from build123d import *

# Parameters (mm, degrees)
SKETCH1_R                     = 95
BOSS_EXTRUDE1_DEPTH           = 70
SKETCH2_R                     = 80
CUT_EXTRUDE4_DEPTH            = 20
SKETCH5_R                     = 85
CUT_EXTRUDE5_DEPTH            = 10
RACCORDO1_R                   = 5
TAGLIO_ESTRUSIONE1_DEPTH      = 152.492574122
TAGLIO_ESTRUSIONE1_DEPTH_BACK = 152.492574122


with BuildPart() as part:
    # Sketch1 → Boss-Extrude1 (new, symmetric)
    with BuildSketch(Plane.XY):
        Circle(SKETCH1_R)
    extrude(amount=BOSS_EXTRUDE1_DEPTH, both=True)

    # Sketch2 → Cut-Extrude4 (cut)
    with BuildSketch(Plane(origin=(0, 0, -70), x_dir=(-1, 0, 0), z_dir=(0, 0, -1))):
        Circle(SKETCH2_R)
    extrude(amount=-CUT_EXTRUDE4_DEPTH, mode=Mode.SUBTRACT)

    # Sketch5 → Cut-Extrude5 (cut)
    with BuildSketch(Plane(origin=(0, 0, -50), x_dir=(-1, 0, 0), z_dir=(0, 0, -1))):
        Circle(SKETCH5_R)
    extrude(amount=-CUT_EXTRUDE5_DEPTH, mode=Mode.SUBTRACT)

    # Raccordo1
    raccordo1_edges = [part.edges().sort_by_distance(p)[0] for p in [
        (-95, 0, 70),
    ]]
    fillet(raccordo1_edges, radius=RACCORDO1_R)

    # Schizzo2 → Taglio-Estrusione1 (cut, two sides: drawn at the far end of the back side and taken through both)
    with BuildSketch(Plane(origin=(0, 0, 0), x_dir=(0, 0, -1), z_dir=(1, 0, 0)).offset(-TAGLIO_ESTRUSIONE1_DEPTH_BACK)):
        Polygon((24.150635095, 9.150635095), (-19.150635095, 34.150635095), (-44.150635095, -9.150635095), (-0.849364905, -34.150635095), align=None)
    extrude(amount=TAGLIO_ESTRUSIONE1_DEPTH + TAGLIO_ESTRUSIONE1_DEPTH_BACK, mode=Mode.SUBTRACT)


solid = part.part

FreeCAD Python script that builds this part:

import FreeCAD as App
import Part
import Sketcher

V = App.Vector
Q = App.Units.Quantity


def edges_at(feature, points):
    """Names of the edges that pass closest to the given points."""
    edges = feature.Shape.Edges
    near = lambda p: min(range(len(edges)), key=lambda i: edges[i].distToShape(Part.Vertex(*p))[0])
    return sorted({f"Edge{near(p) + 1}" for p in points})


def add_polygon(sketch, points):
    """Adds a closed chain of lines whose ends are joined by coincident constraints."""
    first, n = sketch.GeometryCount, len(points)
    for a, b in zip(points, points[1:] + points[:1]):
        sketch.addGeometry(Part.LineSegment(App.Vector(*a, 0), App.Vector(*b, 0)), False)
    for i in range(n):
        sketch.addConstraint(Sketcher.Constraint("Coincident", first + i, 2, first + (i + 1) % n, 1))

doc = App.newDocument("Part")
body = doc.addObject("PartDesign::Body", "Body")

sketch1 = body.newObject("Sketcher::SketchObject", "Sketch")
sketch1.AttachmentSupport = (doc.getObject("XY_Plane"), [""])
sketch1.MapMode = "FlatFace"
sketch1.addGeometry(Part.Circle(V(0, 0, 0), V(0, 0, 1), 95), False)
sketch1.addConstraint([
    Sketcher.Constraint("Coincident", 0, 3, -1, 1),
    Sketcher.Constraint("Diameter", 0, Q("190 mm")),
])
pad1 = body.newObject("PartDesign::Pad", "Pad")
pad1.Profile = sketch1
pad1.Length = 140
pad1.Midplane = True

sketch2 = body.newObject("Sketcher::SketchObject", "Sketch001")
sketch2.AttachmentSupport = (doc.getObject("XY_Plane"), [""])
sketch2.MapMode = "FlatFace"
sketch2.AttachmentOffset = App.Placement(V(0, 0, -70), App.Rotation())
sketch2.addGeometry(Part.Circle(V(0, 0, 0), V(0, 0, 1), 80), False)
sketch2.addConstraint([
    Sketcher.Constraint("Coincident", 0, 3, -1, 1),
    Sketcher.Constraint("Diameter", 0, Q("160 mm")),
])
pocket1 = body.newObject("PartDesign::Pocket", "Pocket")
pocket1.Profile = sketch2
pocket1.Length = 20
pocket1.Reversed = True

sketch3 = body.newObject("Sketcher::SketchObject", "Sketch002")
sketch3.AttachmentSupport = (doc.getObject("XY_Plane"), [""])
sketch3.MapMode = "FlatFace"
sketch3.AttachmentOffset = App.Placement(V(0, 0, -50), App.Rotation())
sketch3.addGeometry(Part.Circle(V(0, 0, 0), V(0, 0, 1), 85), False)
sketch3.addConstraint([
    Sketcher.Constraint("Coincident", 0, 3, -1, 1),
    Sketcher.Constraint("Diameter", 0, Q("170 mm")),
])
pocket2 = body.newObject("PartDesign::Pocket", "Pocket001")
pocket2.Profile = sketch3
pocket2.Length = 10
pocket2.Reversed = True
doc.recompute()

fillet = body.newObject("PartDesign::Fillet", "Fillet")
fillet.Base = (pocket2, edges_at(pocket2, [(-95, 0, 70)]))
fillet.Radius = 5

sketch4 = body.newObject("Sketcher::SketchObject", "Sketch003")
sketch4.AttachmentSupport = (doc.getObject("YZ_Plane"), [""])
sketch4.MapMode = "FlatFace"
add_polygon(sketch4, [(9, -24), (34, 19), (-9, 44), (-34, 1)])
sketch4.addConstraint([
    Sketcher.Constraint("Perpendicular", 0, 1),
    Sketcher.Constraint("Perpendicular", 1, 2),
    Sketcher.Constraint("Perpendicular", 2, 3),
    Sketcher.Constraint("Equal", 0, 1),
    Sketcher.Constraint("Angle", 0, Q("60 deg")),
    Sketcher.Constraint("Distance", 0, Q("50 mm")),
    Sketcher.Constraint("DistanceX", -1, 1, 0, 2, Q("34.150635 mm")),
    Sketcher.Constraint("DistanceY", -1, 1, 0, 2, Q("19.150635 mm")),
])
pocket3 = body.newObject("PartDesign::Pocket", "Pocket002")
pocket3.Profile = sketch4
pocket3.Type = "ThroughAll"
pocket3.Midplane = True

doc.recompute()
